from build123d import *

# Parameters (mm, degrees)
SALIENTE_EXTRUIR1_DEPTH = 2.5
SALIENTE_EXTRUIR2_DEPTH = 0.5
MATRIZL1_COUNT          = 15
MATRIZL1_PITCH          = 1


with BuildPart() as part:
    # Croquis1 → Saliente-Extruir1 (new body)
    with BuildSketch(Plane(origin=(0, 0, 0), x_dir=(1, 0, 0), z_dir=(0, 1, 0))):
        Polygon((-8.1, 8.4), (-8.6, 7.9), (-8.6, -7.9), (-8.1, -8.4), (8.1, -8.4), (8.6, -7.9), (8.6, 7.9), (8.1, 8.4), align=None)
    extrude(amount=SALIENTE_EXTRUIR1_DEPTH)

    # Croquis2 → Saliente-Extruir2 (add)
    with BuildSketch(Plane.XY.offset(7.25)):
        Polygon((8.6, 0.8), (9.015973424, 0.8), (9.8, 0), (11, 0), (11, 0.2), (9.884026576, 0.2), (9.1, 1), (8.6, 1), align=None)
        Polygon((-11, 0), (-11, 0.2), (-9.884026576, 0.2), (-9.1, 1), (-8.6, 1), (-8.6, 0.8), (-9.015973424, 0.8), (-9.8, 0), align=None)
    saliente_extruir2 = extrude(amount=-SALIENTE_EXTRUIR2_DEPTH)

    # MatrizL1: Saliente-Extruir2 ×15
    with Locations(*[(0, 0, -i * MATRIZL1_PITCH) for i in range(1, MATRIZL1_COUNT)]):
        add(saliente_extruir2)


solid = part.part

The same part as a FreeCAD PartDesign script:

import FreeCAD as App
import Part
import Sketcher
from FreeCAD import Vector

doc = App.newDocument("Part")
body = doc.addObject("PartDesign::Body", "Body")

sketch1 = doc.addObject("Sketcher::SketchObject", "Sketch")
body.addObject(sketch1)
sketch1.AttachmentSupport = (doc.XZ_Plane, [""])
sketch1.MapMode = "FlatFace"
sketch1.addGeometry(Part.LineSegment(Vector(-8.1, -8.4, 0), Vector(-8.6, -7.9, 0)), False)
sketch1.addGeometry(Part.LineSegment(Vector(-8.6, -7.9, 0), Vector(-8.6, 7.9, 0)), False)
sketch1.addGeometry(Part.LineSegment(Vector(-8.6, 7.9, 0), Vector(-8.1, 8.4, 0)), False)
sketch1.addGeometry(Part.LineSegment(Vector(-8.1, 8.4, 0), Vector(8.1, 8.4, 0)), False)
sketch1.addGeometry(Part.LineSegment(Vector(8.1, 8.4, 0), Vector(8.6, 7.9, 0)), False)
sketch1.addGeometry(Part.LineSegment(Vector(8.6, 7.9, 0), Vector(8.6, -7.9, 0)), False)
sketch1.addGeometry(Part.LineSegment(Vector(8.6, -7.9, 0), Vector(8.1, -8.4, 0)), False)
sketch1.addGeometry(Part.LineSegment(Vector(8.1, -8.4, 0), Vector(-8.1, -8.4, 0)), False)
sketch1.addConstraint(Sketcher.Constraint("Coincident", 0, 2, 1, 1))
sketch1.addConstraint(Sketcher.Constraint("Coincident", 1, 2, 2, 1))
sketch1.addConstraint(Sketcher.Constraint("Coincident", 2, 2, 3, 1))
sketch1.addConstraint(Sketcher.Constraint("Coincident", 3, 2, 4, 1))
sketch1.addConstraint(Sketcher.Constraint("Coincident", 4, 2, 5, 1))
sketch1.addConstraint(Sketcher.Constraint("Coincident", 5, 2, 6, 1))
sketch1.addConstraint(Sketcher.Constraint("Coincident", 6, 2, 7, 1))
sketch1.addConstraint(Sketcher.Constraint("Coincident", 7, 2, 0, 1))
sketch1.addConstraint(Sketcher.Constraint("Vertical", 1))
sketch1.addConstraint(Sketcher.Constraint("Horizontal", 3))
sketch1.addConstraint(Sketcher.Constraint("Vertical", 5))
sketch1.addConstraint(Sketcher.Constraint("Horizontal", 7))
sketch1.addConstraint(Sketcher.Constraint("Symmetric", 0, 2, 4, 2, -1, 1))
sketch1.addConstraint(Sketcher.Constraint("Symmetric", 2, 2, 6, 2, -1, 1))
sketch1.addConstraint(Sketcher.Constraint("Perpendicular", 0, 2))
sketch1.addConstraint(Sketcher.Constraint("Perpendicular", 2, 4))
sketch1.addConstraint(Sketcher.Constraint("Perpendicular", 4, 6))
sketch1.addConstraint(Sketcher.Constraint("Horizontal", 1, 2, 4, 2))
sketch1.addConstraint(Sketcher.Constraint("Vertical", 3, 2, 6, 2))
sketch1.addConstraint(Sketcher.Constraint("DistanceX", 3, 1, 3, 2, 16.2))
sketch1.addConstraint(Sketcher.Constraint("DistanceY", 1, 1, 1, 2, 15.8))
sketch1.addConstraint(Sketcher.Constraint("DistanceX", 0, 2, -1, 1, 8.6))
pad1 = doc.addObject("PartDesign::Pad", "Pad")
body.addObject(pad1)
pad1.Profile = sketch1
pad1.Length = 2.5
pad1.Reversed = True

sketch2 = doc.addObject("Sketcher::SketchObject", "Sketch001")
body.addObject(sketch2)
sketch2.AttachmentSupport = (doc.XY_Plane, [""])
sketch2.MapMode = "FlatFace"
sketch2.AttachmentOffset = App.Placement(Vector(0, 0, 7.25), App.Rotation())
sketch2.addGeometry(Part.LineSegment(Vector(8.6, 0.8, 0), Vector(9.02, 0.8, 0)), False)
sketch2.addGeometry(Part.LineSegment(Vector(9.02, 0.8, 0), Vector(9.8, 0, 0)), False)
sketch2.addGeometry(Part.LineSegment(Vector(9.8, 0, 0), Vector(11, 0, 0)), False)
sketch2.addGeometry(Part.LineSegment(Vector(11, 0, 0), Vector(11, 0.2, 0)), False)
sketch2.addGeometry(Part.LineSegment(Vector(11, 0.2, 0), Vector(9.88, 0.2, 0)), False)
sketch2.addGeometry(Part.LineSegment(Vector(9.88, 0.2, 0), Vector(9.1, 1, 0)), False)
sketch2.addGeometry(Part.LineSegment(Vector(9.1, 1, 0), Vector(8.6, 1, 0)), False)
sketch2.addGeometry(Part.LineSegment(Vector(8.6, 1, 0), Vector(8.6, 0.8, 0)), False)
sketch2.addGeometry(Part.LineSegment(Vector(-11, 0.2, 0), Vector(-11, 0, 0)), False)
sketch2.addGeometry(Part.LineSegment(Vector(-11, 0, 0), Vector(-9.8, 0, 0)), False)
sketch2.addGeometry(Part.LineSegment(Vector(-9.8, 0, 0), Vector(-9.02, 0.8, 0)), False)
sketch2.addGeometry(Part.LineSegment(Vector(-9.02, 0.8, 0), Vector(-8.6, 0.8, 0)), False)
sketch2.addGeometry(Part.LineSegment(Vector(-8.6, 0.8, 0), Vector(-8.6, 1, 0)), False)
sketch2.addGeometry(Part.LineSegment(Vector(-8.6, 1, 0), Vector(-9.1, 1, 0)), False)
sketch2.addGeometry(Part.LineSegment(Vector(-9.1, 1, 0), Vector(-9.88, 0.2, 0)), False)
sketch2.addGeometry(Part.LineSegment(Vector(-9.88, 0.2, 0), Vector(-11, 0.2, 0)), False)
sketch2.addConstraint(Sketcher.Constraint("Coincident", 0, 2, 1, 1))
sketch2.addConstraint(Sketcher.Constraint("Coincident", 1, 2, 2, 1))
sketch2.addConstraint(Sketcher.Constraint("Coincident", 2, 2, 3, 1))
sketch2.addConstraint(Sketcher.Constraint("Coincident", 3, 2, 4, 1))
sketch2.addConstraint(Sketcher.Constraint("Coincident", 4, 2, 5, 1))
sketch2.addConstraint(Sketcher.Constraint("Coincident", 5, 2, 6, 1))
sketch2.addConstraint(Sketcher.Constraint("Coincident", 6, 2, 7, 1))
sketch2.addConstraint(Sketcher.Constraint("Coincident", 7, 2, 0, 1))
sketch2.addConstraint(Sketcher.Constraint("Coincident", 8, 2, 9, 1))
sketch2.addConstraint(Sketcher.Constraint("Coincident", 9, 2, 10, 1))
sketch2.addConstraint(Sketcher.Constraint("Coincident", 10, 2, 11, 1))
sketch2.addConstraint(Sketcher.Constraint("Coincident", 11, 2, 12, 1))
sketch2.addConstraint(Sketcher.Constraint("Coincident", 12, 2, 13, 1))
sketch2.addConstraint(Sketcher.Constraint("Coincident", 13, 2, 14, 1))
sketch2.addConstraint(Sketcher.Constraint("Coincident", 14, 2, 15, 1))
sketch2.addConstraint(Sketcher.Constraint("Coincident", 15, 2, 8, 1))
sketch2.addConstraint(Sketcher.Constraint("Horizontal", 0))
sketch2.addConstraint(Sketcher.Constraint("Horizontal", 2))
sketch2.addConstraint(Sketcher.Constraint("Vertical", 3))
sketch2.addConstraint(Sketcher.Constraint("Horizontal", 4))
sketch2.addConstraint(Sketcher.Constraint("Horizontal", 6))
sketch2.addConstraint(Sketcher.Constraint("Vertical", 7))
sketch2.addConstraint(Sketcher.Constraint("Vertical", 8))
sketch2.addConstraint(Sketcher.Constraint("Horizontal", 9))
sketch2.addConstraint(Sketcher.Constraint("Horizontal", 11))
sketch2.addConstraint(Sketcher.Constraint("Vertical", 12))
sketch2.addConstraint(Sketcher.Constraint("Horizontal", 13))
sketch2.addConstraint(Sketcher.Constraint("Horizontal", 15))
sketch2.addConstraint(Sketcher.Constraint("Symmetric", 2, 2, 8, 2, -1, 1))
sketch2.addConstraint(Sketcher.Constraint("Symmetric", 1, 2, 9, 2, -2))
sketch2.addConstraint(Sketcher.Constraint("Symmetric", 0, 2, 10, 2, -2))
sketch2.addConstraint(Sketcher.Constraint("Symmetric", 6, 2, 12, 2, -2))
sketch2.addConstraint(Sketcher.Constraint("Symmetric", 4, 2, 14, 2, -2))
sketch2.addConstraint(Sketcher.Constraint("Parallel", 1, 5))
sketch2.addConstraint(Sketcher.Constraint("Parallel", 10, 14))
sketch2.addConstraint(Sketcher.Constraint("Equal", 3, 7))
sketch2.addConstraint(Sketcher.Constraint("DistanceX", 2, 1, 2, 2, 1.2))
sketch2.addConstraint(Sketcher.Constraint("DistanceX", 6, 2, 6, 1, 0.5))
sketch2.addConstraint(Sketcher.Constraint("DistanceY", 3, 1, 3, 2, 0.2))
sketch2.addConstraint(Sketcher.Constraint("DistanceX", -1, 1, 2, 2, 11.0))
sketch2.addConstraint(Sketcher.Constraint("DistanceY", -1, 1, 5, 2, 1.0))
sketch2.addConstraint(Sketcher.Constraint("DistanceX", -1, 1, 5, 2, 9.1))
sketch2.addConstraint(Sketcher.Constraint("DistanceX", 0, 1, 0, 2, 0.415973))
pad2 = doc.addObject("PartDesign::Pad", "Pad001")
body.addObject(pad2)
pad2.Profile = sketch2
pad2.Length = 0.5
pad2.Reversed = True
doc.recompute()

linearpattern = doc.addObject("PartDesign::LinearPattern", "LinearPattern")
body.addObject(linearpattern)
linearpattern.Originals = [pad2]
linearpattern.Direction = (doc.Z_Axis, [""])
linearpattern.Mode = "offset"
linearpattern.Offset = 1
linearpattern.Occurrences = 15
linearpattern.Reversed = True
body.Tip = linearpattern

doc.recompute()
